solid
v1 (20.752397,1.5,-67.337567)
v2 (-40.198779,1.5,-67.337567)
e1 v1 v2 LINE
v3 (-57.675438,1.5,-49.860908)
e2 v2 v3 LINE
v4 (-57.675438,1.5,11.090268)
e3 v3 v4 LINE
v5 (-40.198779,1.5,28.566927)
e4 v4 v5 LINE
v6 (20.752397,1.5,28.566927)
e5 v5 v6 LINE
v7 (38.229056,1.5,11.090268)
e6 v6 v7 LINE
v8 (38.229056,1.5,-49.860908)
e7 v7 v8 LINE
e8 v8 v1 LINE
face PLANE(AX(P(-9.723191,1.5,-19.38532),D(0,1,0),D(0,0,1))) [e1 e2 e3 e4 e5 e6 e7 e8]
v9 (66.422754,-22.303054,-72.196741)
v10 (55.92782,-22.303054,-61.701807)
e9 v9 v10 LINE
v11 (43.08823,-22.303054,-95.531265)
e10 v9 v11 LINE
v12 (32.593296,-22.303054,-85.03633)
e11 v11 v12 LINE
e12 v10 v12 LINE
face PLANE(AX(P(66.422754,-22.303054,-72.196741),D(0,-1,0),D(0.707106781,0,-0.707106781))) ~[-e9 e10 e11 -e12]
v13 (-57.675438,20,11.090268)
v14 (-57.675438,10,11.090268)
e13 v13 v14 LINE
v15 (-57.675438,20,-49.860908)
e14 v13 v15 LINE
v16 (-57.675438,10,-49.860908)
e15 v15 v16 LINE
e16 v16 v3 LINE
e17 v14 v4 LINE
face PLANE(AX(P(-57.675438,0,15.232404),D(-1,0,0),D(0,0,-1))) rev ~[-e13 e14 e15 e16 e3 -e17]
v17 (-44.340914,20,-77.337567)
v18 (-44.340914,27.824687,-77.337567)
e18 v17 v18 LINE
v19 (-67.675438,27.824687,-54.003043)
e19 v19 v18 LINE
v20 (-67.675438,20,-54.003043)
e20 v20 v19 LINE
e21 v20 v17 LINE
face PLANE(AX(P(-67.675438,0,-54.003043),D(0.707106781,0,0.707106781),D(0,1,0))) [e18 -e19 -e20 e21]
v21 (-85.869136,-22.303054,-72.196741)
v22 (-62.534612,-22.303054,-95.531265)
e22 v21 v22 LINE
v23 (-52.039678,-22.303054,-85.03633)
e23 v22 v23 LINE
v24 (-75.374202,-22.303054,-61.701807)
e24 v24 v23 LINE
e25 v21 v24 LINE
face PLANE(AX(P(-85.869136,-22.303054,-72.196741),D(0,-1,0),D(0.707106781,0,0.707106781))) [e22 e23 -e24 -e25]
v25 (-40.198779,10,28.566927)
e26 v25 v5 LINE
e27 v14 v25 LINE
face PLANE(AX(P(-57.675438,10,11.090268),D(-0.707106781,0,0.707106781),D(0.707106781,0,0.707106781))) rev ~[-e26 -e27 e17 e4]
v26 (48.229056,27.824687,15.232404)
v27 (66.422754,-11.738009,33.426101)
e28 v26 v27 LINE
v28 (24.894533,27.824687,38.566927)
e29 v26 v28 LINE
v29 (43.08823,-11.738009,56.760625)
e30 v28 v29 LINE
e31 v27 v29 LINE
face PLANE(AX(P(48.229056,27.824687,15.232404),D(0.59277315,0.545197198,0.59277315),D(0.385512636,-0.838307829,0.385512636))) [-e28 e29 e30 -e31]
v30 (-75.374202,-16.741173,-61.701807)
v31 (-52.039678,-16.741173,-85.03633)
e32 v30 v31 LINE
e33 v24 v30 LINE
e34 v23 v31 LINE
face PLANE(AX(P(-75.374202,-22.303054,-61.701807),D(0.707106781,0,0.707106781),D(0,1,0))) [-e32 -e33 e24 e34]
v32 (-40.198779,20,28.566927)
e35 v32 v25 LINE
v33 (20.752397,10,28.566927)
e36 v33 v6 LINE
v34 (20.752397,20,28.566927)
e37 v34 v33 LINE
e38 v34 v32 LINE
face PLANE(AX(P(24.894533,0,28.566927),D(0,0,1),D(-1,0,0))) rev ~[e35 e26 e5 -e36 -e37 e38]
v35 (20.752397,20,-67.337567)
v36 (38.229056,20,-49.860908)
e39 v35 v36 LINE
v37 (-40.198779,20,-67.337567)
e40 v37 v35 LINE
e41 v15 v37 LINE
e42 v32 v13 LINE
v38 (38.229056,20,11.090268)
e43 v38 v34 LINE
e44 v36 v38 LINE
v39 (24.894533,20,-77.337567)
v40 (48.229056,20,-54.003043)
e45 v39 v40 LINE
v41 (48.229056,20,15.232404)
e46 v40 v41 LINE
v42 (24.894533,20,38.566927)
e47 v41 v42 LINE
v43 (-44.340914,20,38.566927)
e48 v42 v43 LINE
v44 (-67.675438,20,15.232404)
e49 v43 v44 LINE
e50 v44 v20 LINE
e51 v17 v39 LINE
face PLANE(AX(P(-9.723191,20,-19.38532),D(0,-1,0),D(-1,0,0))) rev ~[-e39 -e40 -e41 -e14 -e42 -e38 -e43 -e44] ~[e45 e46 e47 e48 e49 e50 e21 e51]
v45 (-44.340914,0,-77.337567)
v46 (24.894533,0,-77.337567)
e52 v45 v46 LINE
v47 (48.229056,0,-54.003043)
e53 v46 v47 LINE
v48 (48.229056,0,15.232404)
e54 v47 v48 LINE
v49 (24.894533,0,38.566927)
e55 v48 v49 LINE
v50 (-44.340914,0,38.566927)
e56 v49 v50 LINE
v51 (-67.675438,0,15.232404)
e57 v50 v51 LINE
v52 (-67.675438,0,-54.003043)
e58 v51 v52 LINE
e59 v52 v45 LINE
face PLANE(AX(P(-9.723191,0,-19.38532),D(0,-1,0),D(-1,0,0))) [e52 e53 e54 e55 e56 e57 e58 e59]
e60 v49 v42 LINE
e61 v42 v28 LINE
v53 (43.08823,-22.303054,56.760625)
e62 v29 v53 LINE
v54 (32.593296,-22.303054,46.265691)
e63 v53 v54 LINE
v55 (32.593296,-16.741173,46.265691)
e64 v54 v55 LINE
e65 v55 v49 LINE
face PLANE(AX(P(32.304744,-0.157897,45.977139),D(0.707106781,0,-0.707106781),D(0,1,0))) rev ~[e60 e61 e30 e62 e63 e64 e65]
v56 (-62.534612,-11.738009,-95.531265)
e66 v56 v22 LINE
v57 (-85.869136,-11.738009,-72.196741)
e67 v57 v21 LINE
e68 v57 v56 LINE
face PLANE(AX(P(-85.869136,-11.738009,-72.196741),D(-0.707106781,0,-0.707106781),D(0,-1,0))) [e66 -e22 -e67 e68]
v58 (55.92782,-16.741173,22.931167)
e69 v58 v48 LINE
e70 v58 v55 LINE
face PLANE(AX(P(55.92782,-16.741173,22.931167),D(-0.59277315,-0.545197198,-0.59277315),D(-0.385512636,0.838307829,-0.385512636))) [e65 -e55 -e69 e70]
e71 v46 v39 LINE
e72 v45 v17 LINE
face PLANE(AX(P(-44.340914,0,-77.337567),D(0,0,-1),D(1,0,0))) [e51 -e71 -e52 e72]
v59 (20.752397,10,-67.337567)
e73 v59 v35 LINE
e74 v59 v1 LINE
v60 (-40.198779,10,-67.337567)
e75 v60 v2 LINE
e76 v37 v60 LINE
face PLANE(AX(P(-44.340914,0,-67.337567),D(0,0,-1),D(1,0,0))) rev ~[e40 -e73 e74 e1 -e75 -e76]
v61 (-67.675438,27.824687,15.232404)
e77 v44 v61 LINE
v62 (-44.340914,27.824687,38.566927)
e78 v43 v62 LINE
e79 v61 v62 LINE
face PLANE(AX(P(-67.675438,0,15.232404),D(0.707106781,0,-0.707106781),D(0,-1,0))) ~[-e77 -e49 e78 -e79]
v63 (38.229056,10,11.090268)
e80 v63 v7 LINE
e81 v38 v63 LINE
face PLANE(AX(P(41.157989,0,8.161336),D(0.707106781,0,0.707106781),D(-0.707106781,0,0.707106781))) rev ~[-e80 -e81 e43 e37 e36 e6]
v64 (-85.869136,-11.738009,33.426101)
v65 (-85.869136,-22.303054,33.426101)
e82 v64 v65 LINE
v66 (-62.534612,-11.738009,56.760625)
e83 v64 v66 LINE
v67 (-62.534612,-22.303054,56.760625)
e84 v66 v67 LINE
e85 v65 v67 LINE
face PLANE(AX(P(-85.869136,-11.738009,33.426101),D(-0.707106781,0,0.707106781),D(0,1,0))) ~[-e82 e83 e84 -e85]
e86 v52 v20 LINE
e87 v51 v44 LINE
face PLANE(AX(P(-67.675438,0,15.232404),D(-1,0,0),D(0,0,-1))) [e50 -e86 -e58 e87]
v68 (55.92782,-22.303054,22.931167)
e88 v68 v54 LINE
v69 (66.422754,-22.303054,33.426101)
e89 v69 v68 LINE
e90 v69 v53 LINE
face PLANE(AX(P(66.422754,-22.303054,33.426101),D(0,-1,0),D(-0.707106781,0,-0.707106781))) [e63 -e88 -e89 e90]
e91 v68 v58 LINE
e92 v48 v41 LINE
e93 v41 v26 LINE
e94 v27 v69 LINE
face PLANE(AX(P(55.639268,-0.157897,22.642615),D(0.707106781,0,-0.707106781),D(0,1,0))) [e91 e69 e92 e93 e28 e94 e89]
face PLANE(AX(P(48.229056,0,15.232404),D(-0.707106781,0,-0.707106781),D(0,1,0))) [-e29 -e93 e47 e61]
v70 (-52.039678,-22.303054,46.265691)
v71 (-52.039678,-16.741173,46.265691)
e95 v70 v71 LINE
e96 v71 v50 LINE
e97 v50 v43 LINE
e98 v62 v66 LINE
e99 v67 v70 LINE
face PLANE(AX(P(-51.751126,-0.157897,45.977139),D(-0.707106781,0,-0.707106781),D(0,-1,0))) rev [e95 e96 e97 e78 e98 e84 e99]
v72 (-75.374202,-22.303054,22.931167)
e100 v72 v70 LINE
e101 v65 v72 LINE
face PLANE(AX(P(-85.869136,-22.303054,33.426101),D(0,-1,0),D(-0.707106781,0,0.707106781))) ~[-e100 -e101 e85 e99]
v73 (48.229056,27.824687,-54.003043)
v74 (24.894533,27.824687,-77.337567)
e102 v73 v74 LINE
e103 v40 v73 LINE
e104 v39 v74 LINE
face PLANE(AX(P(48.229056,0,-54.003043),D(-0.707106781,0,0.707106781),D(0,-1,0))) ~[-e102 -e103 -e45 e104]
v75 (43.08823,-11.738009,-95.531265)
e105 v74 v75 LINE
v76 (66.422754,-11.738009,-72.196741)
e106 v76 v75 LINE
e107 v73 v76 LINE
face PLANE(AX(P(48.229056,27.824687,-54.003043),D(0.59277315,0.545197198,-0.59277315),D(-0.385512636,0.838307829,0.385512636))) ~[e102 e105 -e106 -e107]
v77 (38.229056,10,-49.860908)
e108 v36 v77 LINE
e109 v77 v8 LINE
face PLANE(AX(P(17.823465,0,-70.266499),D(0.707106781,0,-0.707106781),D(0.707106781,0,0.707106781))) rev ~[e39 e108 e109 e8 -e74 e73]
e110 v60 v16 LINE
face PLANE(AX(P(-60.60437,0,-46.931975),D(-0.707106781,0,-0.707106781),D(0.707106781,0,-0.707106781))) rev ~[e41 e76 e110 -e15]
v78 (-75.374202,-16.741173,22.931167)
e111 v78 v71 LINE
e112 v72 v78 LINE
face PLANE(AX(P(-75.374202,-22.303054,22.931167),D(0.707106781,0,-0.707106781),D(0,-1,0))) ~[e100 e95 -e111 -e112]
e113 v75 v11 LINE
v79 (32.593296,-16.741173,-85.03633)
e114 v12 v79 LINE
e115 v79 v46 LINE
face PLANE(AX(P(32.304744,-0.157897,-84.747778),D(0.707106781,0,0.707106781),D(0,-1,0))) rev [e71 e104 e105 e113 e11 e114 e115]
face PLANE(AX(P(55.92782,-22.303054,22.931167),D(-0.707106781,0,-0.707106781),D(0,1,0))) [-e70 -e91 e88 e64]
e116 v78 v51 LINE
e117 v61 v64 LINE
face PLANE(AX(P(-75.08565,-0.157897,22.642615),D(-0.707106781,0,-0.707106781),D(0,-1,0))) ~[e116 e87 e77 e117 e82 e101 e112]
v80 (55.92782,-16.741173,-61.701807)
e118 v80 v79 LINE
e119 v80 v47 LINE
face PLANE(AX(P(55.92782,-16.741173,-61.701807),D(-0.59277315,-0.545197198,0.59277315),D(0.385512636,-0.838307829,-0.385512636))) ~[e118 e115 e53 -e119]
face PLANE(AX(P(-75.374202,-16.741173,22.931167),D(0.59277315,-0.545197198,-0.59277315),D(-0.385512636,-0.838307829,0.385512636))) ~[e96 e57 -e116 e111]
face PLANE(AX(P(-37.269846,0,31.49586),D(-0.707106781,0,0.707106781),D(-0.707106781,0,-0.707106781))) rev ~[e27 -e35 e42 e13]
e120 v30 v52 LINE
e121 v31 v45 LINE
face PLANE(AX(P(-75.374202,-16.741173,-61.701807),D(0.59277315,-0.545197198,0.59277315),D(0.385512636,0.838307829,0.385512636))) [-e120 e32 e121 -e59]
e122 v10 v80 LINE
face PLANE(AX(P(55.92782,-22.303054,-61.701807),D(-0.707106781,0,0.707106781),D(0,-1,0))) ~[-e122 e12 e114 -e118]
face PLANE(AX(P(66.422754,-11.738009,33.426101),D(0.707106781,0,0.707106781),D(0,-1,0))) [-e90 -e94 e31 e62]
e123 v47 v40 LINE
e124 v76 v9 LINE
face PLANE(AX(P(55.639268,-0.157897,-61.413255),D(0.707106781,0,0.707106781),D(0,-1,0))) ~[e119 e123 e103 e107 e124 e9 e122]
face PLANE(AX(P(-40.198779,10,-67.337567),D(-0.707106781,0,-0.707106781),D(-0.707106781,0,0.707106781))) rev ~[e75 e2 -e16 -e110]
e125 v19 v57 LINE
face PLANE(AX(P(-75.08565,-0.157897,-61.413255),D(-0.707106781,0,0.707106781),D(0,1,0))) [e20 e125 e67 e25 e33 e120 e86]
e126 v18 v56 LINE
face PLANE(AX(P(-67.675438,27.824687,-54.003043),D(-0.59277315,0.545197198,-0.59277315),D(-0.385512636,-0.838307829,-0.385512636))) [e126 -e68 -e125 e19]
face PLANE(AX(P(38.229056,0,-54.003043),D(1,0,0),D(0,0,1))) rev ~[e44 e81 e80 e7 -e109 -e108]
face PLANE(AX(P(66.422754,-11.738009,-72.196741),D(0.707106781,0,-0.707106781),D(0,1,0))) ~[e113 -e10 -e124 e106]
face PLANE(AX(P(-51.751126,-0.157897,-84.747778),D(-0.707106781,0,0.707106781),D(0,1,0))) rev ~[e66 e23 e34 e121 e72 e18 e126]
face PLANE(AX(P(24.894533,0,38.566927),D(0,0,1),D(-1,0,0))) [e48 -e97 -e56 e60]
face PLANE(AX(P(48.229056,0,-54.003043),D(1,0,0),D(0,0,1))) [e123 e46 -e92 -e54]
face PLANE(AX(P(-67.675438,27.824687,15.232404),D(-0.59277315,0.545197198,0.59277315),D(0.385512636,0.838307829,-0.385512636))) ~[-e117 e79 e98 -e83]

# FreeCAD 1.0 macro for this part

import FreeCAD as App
import Part
import Sketcher

V = App.Vector
Q = App.Units.Quantity


def faces_at(feature, points):
    """Names of the faces that lie closest to the given points."""
    faces = feature.Shape.Faces
    near = lambda p: min(range(len(faces)), key=lambda i: faces[i].distToShape(Part.Vertex(*p))[0])
    return sorted({f"Face{near(p) + 1}" for p in points})


def add_polygon(sketch, points):
    """Adds a closed chain of lines whose ends are joined by coincident constraints."""
    first, n = sketch.GeometryCount, len(points)
    for a, b in zip(points, points[1:] + points[:1]):
        sketch.addGeometry(Part.LineSegment(App.Vector(*a, 0), App.Vector(*b, 0)), False)
    for i in range(n):
        sketch.addConstraint(Sketcher.Constraint("Coincident", first + i, 2, first + (i + 1) % n, 1))

doc = App.newDocument("Part")
body = doc.addObject("PartDesign::Body", "Body")

sketch1 = body.newObject("Sketcher::SketchObject", "Sketch")
sketch1.AttachmentSupport = (doc.getObject("XZ_Plane"), [""])
sketch1.MapMode = "FlatFace"
add_polygon(sketch1, [(48, -54), (25, -77), (-44, -77), (-68, -54), (-68, 15), (-44, 39), (25, 39), (48, 15)])
sketch1.addConstraint([
    Sketcher.Constraint("Horizontal", 1),
    Sketcher.Constraint("Vertical", 3),
    Sketcher.Constraint("Horizontal", 5),
    Sketcher.Constraint("Vertical", 7),
    Sketcher.Constraint("Perpendicular", 0, 2),
    Sketcher.Constraint("Perpendicular", 2, 4),
    Sketcher.Constraint("Perpendicular", 4, 6),
    Sketcher.Constraint("Horizontal", 3, 2, 6, 2),
    Sketcher.Constraint("Horizontal", 2, 2, 7, 2),
    Sketcher.Constraint("Vertical", 1, 2, 4, 2),
    Sketcher.Constraint("Vertical", 0, 2, 5, 2),
    Sketcher.Constraint("Equal", 5, 3),
    Sketcher.Constraint("Distance", 0, Q("33 mm")),
    Sketcher.Constraint("DistanceX", 1, 2, 1, 1, Q("69.235447 mm")),
    Sketcher.Constraint("DistanceX", 2, 2, -1, 1, Q("67.675438 mm")),
    Sketcher.Constraint("DistanceY", 0, 2, -1, 1, Q("77.337567 mm")),
])
pad1 = body.newObject("PartDesign::Pad", "Pad")
pad1.Profile = sketch1
pad1.Length = 20
pad1.Reversed = True
doc.recompute()

thickness = body.newObject("PartDesign::Thickness", "Thickness")
thickness.Base = (pad1, faces_at(pad1, [(-9.723, 20, -19.385)]))
thickness.Value = 10
thickness.Reversed = True
thickness.Join = "Intersection"

sketch2 = body.newObject("Sketcher::SketchObject", "Sketch001")
sketch2.AttachmentSupport = (doc.getObject("XZ_Plane"), [""])
sketch2.MapMode = "FlatFace"
sketch2.AttachmentOffset = App.Placement(V(0, 0, -10), App.Rotation())
add_polygon(sketch2, [(21, -67), (38, -50), (38, 11), (21, 29), (-40, 29), (-58, 11), (-58, -50), (-40, -67)])
sketch2.addConstraint([
    Sketcher.Constraint("Vertical", 1),
    Sketcher.Constraint("Horizontal", 3),
    Sketcher.Constraint("Vertical", 5),
    Sketcher.Constraint("Horizontal", 7),
    Sketcher.Constraint("Perpendicular", 0, 2),
    Sketcher.Constraint("Perpendicular", 2, 4),
    Sketcher.Constraint("Perpendicular", 4, 6),
    Sketcher.Constraint("Horizontal", 1, 2, 4, 2),
    Sketcher.Constraint("Horizontal", 0, 2, 5, 2),
    Sketcher.Constraint("Vertical", 3, 2, 6, 2),
    Sketcher.Constraint("Vertical", 2, 2, 7, 2),
    Sketcher.Constraint("Equal", 7, 1),
    Sketcher.Constraint("Distance", 0, Q("24.715729 mm")),
    Sketcher.Constraint("DistanceX", 3, 2, 3, 1, Q("60.951176 mm")),
    Sketcher.Constraint("DistanceY", -1, 1, 1, 2, Q("11.090268 mm")),
    Sketcher.Constraint("DistanceX", 3, 2, -1, 1, Q("40.198779 mm")),
])
pocket1 = body.newObject("PartDesign::Pocket", "Pocket")
pocket1.Profile = sketch2
pocket1.Length = 8.5
pocket1.Reversed = True

sketch3 = body.newObject("Sketcher::SketchObject", "Sketch002")
sketch3.Placement = App.Placement(V(-6.836197, 0, 6.836197), App.Rotation(V(0, -1, 0), V(-0.707106781, 0, -0.707106781), V(0.707106781, 0, -0.707106781), "ZXY"))
add_polygon(sketch3, [(12, 112), (-28, 86), (0, 86), (17, 97), (22, 97), (22, 112)])
sketch3.addConstraint([
    Sketcher.Constraint("Horizontal", 1),
    Sketcher.Constraint("Horizontal", 3),
    Sketcher.Constraint("Vertical", 4),
    Sketcher.Constraint("Horizontal", 5),
    Sketcher.Constraint("PointOnObject", 1, 2, -2),
    Sketcher.Constraint("Parallel", 0, 2),
    Sketcher.Constraint("DistanceX", 3, 1, 3, 2, Q("5.561881 mm")),
    Sketcher.Constraint("DistanceY", 4, 1, 4, 2, Q("14.842078 mm")),
    Sketcher.Constraint("DistanceX", 1, 1, 1, 2, Q("27.824687 mm")),
    Sketcher.Constraint("DistanceX", 5, 2, 5, 1, Q("10.565045 mm")),
    Sketcher.Constraint("DistanceY", -1, 1, 0, 2, Q("86.039679 mm")),
    Sketcher.Constraint("DistanceX", -1, 1, 5, 2, Q("11.738009 mm")),
])
pad2 = body.newObject("PartDesign::Pad", "Pad001")
pad2.Profile = sketch3
pad2.Length = 33
doc.recompute()

datumplane = body.newObject("PartDesign::Plane", "DatumPlane")
datumplane.AttachmentSupport = (doc.getObject("XY_Plane"), [""])
datumplane.MapMode = "FlatFace"
datumplane.AttachmentOffset = App.Placement(V(0, 0, -19.38532), App.Rotation())
mirrored = body.newObject("PartDesign::Mirrored", "Mirrored")
mirrored.Originals = [pad2]
mirrored.MirrorPlane = (datumplane, [""])
body.Tip = mirrored
doc.recompute()

datumplane2 = body.newObject("PartDesign::Plane", "DatumPlane001")
datumplane2.AttachmentSupport = (doc.getObject("YZ_Plane"), [""])
datumplane2.MapMode = "FlatFace"
datumplane2.AttachmentOffset = App.Placement(V(0, 0, -9.723191), App.Rotation())
mirrored2 = body.newObject("PartDesign::Mirrored", "Mirrored001")
mirrored2.Originals = [pad2]
mirrored2.MirrorPlane = (datumplane2, [""])
body.Tip = mirrored2

sketch4 = body.newObject("Sketcher::SketchObject", "Sketch003")
sketch4.Placement = App.Placement(V(-12.610184, 0, -45.606837), App.Rotation(V(0, -1, 0), V(0.707106781, 0, 0.707106781), V(-0.707106781, 0, 0.707106781), "ZXY"))
add_polygon(sketch4, [(12, 112), (-28, 86), (0, 86), (17, 97), (22, 97), (22, 112)])
sketch4.addConstraint([
    Sketcher.Constraint("Horizontal", 1),
    Sketcher.Constraint("Horizontal", 3),
    Sketcher.Constraint("Vertical", 4),
    Sketcher.Constraint("Horizontal", 5),
    Sketcher.Constraint("PointOnObject", 1, 2, -2),
    Sketcher.Constraint("Parallel", 0, 2),
    Sketcher.Constraint("DistanceX", 3, 1, 3, 2, Q("5.561881 mm")),
    Sketcher.Constraint("DistanceY", 4, 1, 4, 2, Q("14.842078 mm")),
    Sketcher.Constraint("DistanceX", 1, 1, 1, 2, Q("27.824687 mm")),
    Sketcher.Constraint("DistanceX", 5, 2, 5, 1, Q("10.565045 mm")),
    Sketcher.Constraint("DistanceY", -1, 1, 0, 2, Q("86.039679 mm")),
    Sketcher.Constraint("DistanceX", -1, 1, 5, 2, Q("11.738009 mm")),
])
pad3 = body.newObject("PartDesign::Pad", "Pad002")
pad3.Profile = sketch4
pad3.Length = 33

doc.recompute()
